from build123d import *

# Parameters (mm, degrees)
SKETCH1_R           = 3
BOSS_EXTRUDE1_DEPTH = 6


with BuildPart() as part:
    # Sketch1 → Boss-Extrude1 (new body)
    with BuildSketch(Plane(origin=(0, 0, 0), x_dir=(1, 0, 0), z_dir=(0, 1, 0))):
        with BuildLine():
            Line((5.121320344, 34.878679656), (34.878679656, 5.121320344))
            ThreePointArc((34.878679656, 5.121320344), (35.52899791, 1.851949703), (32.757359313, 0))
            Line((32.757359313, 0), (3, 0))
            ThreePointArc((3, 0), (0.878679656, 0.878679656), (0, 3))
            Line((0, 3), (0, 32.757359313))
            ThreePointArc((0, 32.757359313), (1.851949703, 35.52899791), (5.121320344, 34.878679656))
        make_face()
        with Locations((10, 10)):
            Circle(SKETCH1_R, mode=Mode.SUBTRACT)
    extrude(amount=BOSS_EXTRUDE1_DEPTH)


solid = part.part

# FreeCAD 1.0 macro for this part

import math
import FreeCAD as App
import Part
import Sketcher

V = App.Vector

doc = App.newDocument("Part")
body = doc.addObject("PartDesign::Body", "Body")

# Sketch on XZ plane
sketch1 = body.newObject("Sketcher::SketchObject", "Sketch")
sketch1.AttachmentSupport = (doc.getObject("XZ_Plane"), [""])
sketch1.MapMode = "FlatFace"
sketch1.addGeometry(Part.LineSegment(V(34.87868, -5.12132, 0), V(5.12132, -34.87868, 0)), False)
sketch1.addGeometry(Part.ArcOfCircle(Part.Circle(V(3, -32.757359, 0), V(0, 0, 1), 3), math.radians(-180), math.radians(-45)), False)
sketch1.addGeometry(Part.LineSegment(V(0, -32.757359, 0), V(0, -3, 0)), False)
sketch1.addGeometry(Part.ArcOfCircle(Part.Circle(V(3, -3, 0), V(0, 0, 1), 3), math.radians(90), math.radians(180)), False)
sketch1.addGeometry(Part.LineSegment(V(3, 0, 0), V(32.757359, 0, 0)), False)
sketch1.addGeometry(Part.ArcOfCircle(Part.Circle(V(32.757359, -3, 0), V(0, 0, 1), 3), math.radians(-45), math.radians(90)), False)
sketch1.addGeometry(Part.Circle(V(10, -10, 0), V(0, 0, 1), 3), False)
sketch1.addConstraint(Sketcher.Constraint("Tangent", 0, 2, 1, 2))
sketch1.addConstraint(Sketcher.Constraint("Tangent", 1, 1, 2, 1))
sketch1.addConstraint(Sketcher.Constraint("Tangent", 2, 2, 3, 2))
sketch1.addConstraint(Sketcher.Constraint("Tangent", 3, 1, 4, 1))
sketch1.addConstraint(Sketcher.Constraint("Tangent", 4, 2, 5, 2))
sketch1.addConstraint(Sketcher.Constraint("Tangent", 5, 1, 0, 1))
sketch1.addConstraint(Sketcher.Constraint("Vertical", 2))
sketch1.addConstraint(Sketcher.Constraint("Horizontal", 4))
sketch1.addConstraint(Sketcher.Constraint("Equal", 1, 3))
sketch1.addConstraint(Sketcher.Constraint("Equal", 3, 5))
sketch1.addConstraint(Sketcher.Constraint("Equal", 5, 6))
sketch1.addConstraint(Sketcher.Constraint("PointOnObject", 1, 1, -2))
sketch1.addConstraint(Sketcher.Constraint("PointOnObject", 3, 1, -1))
sketch1.addConstraint(Sketcher.Constraint("Equal", 4, 2))
sketch1.addConstraint(Sketcher.Constraint("Diameter", 6, 6.0))
sketch1.addConstraint(Sketcher.Constraint("DistanceX", -1, 1, 6, 3, 10.0))
sketch1.addConstraint(Sketcher.Constraint("DistanceY", 6, 3, -1, 1, 10.0))
sketch1.addConstraint(Sketcher.Constraint("DistanceX", 4, 1, 4, 2, 29.757359))
pad1 = body.newObject("PartDesign::Pad", "Pad")
pad1.Profile = sketch1
pad1.Length = 6
pad1.Reversed = True

doc.recompute()
